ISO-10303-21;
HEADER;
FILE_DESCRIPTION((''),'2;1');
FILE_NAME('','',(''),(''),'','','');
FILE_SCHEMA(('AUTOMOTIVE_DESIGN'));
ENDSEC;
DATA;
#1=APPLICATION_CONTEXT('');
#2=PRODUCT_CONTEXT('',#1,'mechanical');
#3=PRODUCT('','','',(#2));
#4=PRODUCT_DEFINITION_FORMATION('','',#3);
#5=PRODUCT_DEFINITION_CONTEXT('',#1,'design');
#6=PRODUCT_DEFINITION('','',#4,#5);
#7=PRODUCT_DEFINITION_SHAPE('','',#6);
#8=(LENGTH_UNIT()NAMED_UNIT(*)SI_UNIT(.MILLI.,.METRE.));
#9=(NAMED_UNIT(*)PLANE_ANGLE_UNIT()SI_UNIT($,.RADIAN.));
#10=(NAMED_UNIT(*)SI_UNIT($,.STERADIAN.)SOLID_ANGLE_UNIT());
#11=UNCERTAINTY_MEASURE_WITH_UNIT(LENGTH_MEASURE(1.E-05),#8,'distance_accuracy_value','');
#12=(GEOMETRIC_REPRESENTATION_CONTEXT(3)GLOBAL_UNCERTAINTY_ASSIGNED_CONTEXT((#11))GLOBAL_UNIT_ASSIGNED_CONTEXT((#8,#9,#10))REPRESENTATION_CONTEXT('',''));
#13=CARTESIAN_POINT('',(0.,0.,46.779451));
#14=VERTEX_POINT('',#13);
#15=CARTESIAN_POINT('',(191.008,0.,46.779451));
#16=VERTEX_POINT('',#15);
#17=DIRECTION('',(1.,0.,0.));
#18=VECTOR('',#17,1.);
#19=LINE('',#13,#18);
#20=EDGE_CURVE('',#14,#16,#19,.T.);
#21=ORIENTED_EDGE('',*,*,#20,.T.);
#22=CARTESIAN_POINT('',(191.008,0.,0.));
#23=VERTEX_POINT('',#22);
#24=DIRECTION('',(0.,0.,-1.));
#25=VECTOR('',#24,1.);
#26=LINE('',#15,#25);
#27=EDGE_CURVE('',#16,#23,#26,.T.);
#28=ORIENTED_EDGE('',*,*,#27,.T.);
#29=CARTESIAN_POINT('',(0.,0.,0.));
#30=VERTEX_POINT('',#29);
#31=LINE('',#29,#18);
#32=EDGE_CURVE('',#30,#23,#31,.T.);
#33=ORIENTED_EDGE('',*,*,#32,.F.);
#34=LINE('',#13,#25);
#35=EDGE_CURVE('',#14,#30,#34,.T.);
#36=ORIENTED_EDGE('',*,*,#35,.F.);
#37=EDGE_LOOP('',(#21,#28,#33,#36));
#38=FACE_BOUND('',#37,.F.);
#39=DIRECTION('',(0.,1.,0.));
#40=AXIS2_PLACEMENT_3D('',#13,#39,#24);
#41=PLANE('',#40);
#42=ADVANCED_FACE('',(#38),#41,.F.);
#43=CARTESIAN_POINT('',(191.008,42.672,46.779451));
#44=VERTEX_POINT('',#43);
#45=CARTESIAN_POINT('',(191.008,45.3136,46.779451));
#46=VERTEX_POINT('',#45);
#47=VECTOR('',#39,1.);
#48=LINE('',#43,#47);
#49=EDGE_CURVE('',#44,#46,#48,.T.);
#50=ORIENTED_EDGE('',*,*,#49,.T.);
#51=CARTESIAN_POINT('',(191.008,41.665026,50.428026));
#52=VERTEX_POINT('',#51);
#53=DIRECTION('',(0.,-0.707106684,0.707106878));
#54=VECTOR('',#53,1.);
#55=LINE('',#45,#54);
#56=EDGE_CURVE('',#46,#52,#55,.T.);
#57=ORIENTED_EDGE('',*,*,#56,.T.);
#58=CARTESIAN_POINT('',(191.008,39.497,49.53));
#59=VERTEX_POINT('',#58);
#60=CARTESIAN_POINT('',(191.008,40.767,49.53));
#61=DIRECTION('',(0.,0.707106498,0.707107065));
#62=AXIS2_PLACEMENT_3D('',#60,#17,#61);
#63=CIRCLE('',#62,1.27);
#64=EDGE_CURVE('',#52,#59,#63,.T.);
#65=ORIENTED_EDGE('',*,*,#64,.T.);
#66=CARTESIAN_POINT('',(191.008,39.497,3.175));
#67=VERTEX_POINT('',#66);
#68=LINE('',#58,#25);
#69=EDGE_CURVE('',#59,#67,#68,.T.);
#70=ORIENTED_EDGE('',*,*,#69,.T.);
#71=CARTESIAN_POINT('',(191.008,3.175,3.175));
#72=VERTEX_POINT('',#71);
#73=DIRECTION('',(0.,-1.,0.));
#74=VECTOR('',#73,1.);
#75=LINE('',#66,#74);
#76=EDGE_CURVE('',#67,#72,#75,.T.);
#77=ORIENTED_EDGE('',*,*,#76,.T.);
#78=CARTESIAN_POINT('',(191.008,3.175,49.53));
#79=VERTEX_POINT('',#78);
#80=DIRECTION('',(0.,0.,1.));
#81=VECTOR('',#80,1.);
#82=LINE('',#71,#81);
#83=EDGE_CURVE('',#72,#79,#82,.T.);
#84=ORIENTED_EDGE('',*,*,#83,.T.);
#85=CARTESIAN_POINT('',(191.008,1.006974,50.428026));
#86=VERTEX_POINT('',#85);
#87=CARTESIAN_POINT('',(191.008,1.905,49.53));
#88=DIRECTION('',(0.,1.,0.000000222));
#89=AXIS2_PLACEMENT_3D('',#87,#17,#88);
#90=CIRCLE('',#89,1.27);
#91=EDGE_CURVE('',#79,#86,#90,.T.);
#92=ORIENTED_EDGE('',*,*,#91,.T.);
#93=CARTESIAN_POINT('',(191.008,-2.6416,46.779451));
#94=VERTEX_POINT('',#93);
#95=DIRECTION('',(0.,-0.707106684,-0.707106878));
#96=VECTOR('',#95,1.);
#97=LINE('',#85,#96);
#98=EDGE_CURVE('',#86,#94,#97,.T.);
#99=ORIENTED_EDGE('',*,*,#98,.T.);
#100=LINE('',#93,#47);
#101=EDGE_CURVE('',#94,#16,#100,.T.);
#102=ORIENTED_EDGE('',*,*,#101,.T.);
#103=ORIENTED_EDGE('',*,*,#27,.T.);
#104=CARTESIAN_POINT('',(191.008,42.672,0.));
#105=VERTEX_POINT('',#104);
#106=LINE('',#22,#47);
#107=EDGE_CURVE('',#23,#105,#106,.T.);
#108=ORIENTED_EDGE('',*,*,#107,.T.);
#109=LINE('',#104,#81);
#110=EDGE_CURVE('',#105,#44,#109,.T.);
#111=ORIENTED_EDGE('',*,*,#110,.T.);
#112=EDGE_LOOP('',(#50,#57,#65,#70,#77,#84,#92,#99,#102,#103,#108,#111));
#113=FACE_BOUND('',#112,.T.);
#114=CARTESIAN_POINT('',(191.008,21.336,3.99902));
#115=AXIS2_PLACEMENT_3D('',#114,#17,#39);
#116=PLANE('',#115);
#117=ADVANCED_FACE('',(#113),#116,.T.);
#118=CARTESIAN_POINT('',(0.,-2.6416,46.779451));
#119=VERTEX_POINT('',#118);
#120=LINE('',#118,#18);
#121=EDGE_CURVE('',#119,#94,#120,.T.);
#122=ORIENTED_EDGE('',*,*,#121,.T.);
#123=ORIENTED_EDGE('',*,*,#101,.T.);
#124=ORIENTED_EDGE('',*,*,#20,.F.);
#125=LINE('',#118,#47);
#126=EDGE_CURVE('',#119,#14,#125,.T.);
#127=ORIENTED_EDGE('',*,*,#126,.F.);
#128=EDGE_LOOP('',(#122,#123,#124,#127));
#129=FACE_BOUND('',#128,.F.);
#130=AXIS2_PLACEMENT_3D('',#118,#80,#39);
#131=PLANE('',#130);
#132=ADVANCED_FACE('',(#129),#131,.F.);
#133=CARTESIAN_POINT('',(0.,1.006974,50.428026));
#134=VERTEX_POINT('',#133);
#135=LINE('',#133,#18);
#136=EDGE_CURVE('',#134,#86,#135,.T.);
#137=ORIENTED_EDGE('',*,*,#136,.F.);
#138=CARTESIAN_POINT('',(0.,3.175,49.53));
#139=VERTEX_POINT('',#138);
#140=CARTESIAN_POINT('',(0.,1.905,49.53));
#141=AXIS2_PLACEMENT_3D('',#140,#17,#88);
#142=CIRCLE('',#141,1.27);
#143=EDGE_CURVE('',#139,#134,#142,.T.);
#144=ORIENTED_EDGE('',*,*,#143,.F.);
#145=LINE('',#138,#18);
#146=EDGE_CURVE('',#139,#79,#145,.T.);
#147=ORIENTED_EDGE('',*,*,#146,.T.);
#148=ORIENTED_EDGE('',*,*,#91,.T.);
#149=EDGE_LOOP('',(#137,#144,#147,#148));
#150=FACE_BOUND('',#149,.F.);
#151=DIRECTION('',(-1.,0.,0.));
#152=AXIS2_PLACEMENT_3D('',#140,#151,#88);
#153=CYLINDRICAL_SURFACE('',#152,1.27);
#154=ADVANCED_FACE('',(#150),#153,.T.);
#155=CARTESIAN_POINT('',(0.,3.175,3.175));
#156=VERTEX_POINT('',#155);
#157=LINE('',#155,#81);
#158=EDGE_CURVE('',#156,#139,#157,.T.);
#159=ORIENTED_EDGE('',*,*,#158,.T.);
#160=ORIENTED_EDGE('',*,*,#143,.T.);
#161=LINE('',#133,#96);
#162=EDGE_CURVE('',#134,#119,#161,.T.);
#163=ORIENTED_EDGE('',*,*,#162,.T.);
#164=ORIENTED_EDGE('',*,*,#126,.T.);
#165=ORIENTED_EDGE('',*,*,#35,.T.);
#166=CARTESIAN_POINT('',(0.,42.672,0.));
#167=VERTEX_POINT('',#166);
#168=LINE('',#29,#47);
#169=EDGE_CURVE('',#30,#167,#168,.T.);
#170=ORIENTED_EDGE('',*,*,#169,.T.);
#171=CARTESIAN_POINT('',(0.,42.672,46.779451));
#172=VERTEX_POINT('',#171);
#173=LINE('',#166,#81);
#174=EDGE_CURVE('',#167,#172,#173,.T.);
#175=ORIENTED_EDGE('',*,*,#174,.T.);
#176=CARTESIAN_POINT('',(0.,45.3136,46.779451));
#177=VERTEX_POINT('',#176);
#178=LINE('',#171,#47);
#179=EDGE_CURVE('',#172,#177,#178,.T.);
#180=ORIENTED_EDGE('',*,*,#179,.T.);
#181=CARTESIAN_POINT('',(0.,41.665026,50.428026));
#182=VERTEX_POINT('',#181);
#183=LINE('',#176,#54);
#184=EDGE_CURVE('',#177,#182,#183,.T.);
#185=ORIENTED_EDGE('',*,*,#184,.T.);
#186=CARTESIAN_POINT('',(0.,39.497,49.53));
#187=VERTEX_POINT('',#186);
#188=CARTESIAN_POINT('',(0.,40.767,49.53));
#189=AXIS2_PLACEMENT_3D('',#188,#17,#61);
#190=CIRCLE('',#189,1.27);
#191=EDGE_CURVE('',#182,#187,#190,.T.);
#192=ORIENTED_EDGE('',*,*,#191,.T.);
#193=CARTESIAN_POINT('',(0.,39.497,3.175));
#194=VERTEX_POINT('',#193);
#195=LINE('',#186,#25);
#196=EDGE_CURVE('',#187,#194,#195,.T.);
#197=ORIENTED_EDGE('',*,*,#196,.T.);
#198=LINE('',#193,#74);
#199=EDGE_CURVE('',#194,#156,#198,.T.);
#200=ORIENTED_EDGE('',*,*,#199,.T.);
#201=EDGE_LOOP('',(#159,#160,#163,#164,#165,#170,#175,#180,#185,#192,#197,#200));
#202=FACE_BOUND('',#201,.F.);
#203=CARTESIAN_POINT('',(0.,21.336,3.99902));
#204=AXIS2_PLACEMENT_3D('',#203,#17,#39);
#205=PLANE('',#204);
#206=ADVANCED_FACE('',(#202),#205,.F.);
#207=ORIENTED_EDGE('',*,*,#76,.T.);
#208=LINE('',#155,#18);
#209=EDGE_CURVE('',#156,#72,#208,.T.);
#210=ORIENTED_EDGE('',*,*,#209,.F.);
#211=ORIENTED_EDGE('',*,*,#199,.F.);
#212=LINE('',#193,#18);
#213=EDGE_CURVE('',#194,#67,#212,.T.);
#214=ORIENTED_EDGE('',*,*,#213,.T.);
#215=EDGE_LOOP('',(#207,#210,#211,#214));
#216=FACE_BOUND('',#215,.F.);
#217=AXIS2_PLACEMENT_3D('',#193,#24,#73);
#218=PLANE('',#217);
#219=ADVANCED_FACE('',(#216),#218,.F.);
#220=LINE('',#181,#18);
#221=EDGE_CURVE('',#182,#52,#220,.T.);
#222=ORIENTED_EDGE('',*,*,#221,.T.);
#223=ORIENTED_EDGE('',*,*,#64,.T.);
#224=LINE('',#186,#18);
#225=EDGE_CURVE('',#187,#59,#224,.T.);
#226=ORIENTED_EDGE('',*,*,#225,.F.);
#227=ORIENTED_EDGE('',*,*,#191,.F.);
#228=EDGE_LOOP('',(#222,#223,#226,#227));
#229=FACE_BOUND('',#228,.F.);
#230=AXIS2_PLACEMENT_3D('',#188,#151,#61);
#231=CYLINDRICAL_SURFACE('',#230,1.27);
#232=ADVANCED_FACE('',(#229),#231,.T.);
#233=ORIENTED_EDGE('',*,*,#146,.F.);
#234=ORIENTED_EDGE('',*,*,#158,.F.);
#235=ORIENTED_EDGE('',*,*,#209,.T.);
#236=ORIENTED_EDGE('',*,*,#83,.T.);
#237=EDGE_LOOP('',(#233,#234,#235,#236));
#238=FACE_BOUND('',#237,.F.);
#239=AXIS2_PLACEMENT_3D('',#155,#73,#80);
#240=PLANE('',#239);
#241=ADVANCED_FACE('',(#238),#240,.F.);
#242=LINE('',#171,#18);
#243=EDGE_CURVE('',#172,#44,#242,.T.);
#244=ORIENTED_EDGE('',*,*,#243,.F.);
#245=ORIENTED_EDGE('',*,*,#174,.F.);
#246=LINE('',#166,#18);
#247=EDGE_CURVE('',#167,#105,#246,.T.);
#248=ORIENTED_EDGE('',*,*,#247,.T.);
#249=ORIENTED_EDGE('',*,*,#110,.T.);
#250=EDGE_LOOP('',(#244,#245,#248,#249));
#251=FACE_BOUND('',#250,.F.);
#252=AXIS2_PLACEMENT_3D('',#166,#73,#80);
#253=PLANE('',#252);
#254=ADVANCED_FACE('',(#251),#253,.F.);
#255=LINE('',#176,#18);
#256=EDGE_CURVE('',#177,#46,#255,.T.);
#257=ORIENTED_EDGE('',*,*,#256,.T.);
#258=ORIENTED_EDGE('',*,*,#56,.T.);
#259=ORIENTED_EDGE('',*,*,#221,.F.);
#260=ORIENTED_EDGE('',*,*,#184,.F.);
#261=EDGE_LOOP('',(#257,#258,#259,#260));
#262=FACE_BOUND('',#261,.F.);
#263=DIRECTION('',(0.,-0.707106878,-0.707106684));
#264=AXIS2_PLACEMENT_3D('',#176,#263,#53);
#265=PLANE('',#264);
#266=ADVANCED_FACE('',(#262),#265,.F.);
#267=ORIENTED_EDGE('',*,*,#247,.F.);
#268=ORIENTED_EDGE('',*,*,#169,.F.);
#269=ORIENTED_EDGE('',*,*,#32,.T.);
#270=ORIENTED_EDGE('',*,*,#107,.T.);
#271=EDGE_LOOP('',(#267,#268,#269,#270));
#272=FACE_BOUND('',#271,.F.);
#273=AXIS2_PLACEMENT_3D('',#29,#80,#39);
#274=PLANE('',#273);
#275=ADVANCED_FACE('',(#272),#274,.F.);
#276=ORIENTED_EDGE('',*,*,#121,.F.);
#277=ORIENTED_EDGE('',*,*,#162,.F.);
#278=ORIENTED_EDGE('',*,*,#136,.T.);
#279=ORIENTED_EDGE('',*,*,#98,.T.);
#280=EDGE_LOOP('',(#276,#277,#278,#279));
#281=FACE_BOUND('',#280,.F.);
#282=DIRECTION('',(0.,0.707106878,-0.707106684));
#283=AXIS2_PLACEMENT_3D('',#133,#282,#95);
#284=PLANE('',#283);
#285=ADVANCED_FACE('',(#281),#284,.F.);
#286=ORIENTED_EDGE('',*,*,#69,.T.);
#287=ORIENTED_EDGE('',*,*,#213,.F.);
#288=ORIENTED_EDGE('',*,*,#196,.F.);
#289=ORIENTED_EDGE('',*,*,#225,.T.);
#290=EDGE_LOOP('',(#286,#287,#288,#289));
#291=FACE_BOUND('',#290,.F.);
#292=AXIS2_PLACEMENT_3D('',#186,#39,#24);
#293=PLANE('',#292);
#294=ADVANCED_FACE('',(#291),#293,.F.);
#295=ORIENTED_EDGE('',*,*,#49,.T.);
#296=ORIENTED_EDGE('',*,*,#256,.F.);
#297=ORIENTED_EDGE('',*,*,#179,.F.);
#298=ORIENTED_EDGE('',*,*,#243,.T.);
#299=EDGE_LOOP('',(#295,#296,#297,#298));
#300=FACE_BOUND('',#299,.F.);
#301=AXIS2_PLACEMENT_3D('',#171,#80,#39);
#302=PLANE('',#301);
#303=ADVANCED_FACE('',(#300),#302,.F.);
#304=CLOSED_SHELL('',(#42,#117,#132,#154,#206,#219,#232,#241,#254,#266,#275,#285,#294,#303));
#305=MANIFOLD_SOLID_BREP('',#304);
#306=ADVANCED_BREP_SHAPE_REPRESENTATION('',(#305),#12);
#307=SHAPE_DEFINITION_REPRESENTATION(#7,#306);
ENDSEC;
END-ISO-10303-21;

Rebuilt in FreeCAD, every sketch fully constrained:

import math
import FreeCAD as App
import Part
import Sketcher

V = App.Vector
Q = App.Units.Quantity

doc = App.newDocument("Part")
body = doc.addObject("PartDesign::Body", "Body")

# Sketch on YZ plane
sketch1 = body.newObject("Sketcher::SketchObject", "Sketch")
sketch1.AttachmentSupport = (doc.getObject("YZ_Plane"), [""])
sketch1.MapMode = "FlatFace"
sketch1.addGeometry(Part.LineSegment(V(0, 0, 0), V(42.672, 0, 0)), False)
sketch1.addGeometry(Part.LineSegment(V(42.672, 0, 0), V(42.672, 46.779451, 0)), False)
sketch1.addGeometry(Part.LineSegment(V(42.672, 46.779451, 0), V(45.3136, 46.779451, 0)), False)
sketch1.addGeometry(Part.LineSegment(V(45.3136, 46.779451, 0), V(41.665026, 50.428026, 0)), False)
sketch1.addGeometry(Part.ArcOfCircle(Part.Circle(V(40.767, 49.53, 0), V(0, 0, 1), 1.27), math.radians(45.000023), math.radians(179.999987)), False)
sketch1.addGeometry(Part.LineSegment(V(39.497, 49.53, 0), V(39.497, 3.175, 0)), False)
sketch1.addGeometry(Part.LineSegment(V(39.497, 3.175, 0), V(3.175, 3.175, 0)), False)
sketch1.addGeometry(Part.LineSegment(V(3.175, 3.175, 0), V(3.175, 49.53, 0)), False)
sketch1.addGeometry(Part.ArcOfCircle(Part.Circle(V(1.905, 49.53, 0), V(0, 0, 1), 1.27), math.radians(0.000013), math.radians(134.999977)), False)
sketch1.addGeometry(Part.LineSegment(V(1.006974, 50.428026, 0), V(-2.6416, 46.779451, 0)), False)
sketch1.addGeometry(Part.LineSegment(V(-2.6416, 46.779451, 0), V(0, 46.779451, 0)), False)
sketch1.addGeometry(Part.LineSegment(V(0, 46.779451, 0), V(0, 0, 0)), False)
sketch1.addConstraint(Sketcher.Constraint("Coincident", 0, 2, 1, 1))
sketch1.addConstraint(Sketcher.Constraint("Coincident", 1, 2, 2, 1))
sketch1.addConstraint(Sketcher.Constraint("Coincident", 2, 2, 3, 1))
sketch1.addConstraint(Sketcher.Constraint("Tangent", 3, 2, 4, 1))
sketch1.addConstraint(Sketcher.Constraint("Tangent", 4, 2, 5, 1))
sketch1.addConstraint(Sketcher.Constraint("Coincident", 5, 2, 6, 1))
sketch1.addConstraint(Sketcher.Constraint("Coincident", 6, 2, 7, 1))
sketch1.addConstraint(Sketcher.Constraint("Tangent", 7, 2, 8, 1))
sketch1.addConstraint(Sketcher.Constraint("Tangent", 8, 2, 9, 1))
sketch1.addConstraint(Sketcher.Constraint("Coincident", 9, 2, 10, 1))
sketch1.addConstraint(Sketcher.Constraint("Coincident", 10, 2, 11, 1))
sketch1.addConstraint(Sketcher.Constraint("Coincident", 11, 2, 0, 1))
sketch1.addConstraint(Sketcher.Constraint("Horizontal", 0))
sketch1.addConstraint(Sketcher.Constraint("Vertical", 1))
sketch1.addConstraint(Sketcher.Constraint("Horizontal", 2))
sketch1.addConstraint(Sketcher.Constraint("Vertical", 5))
sketch1.addConstraint(Sketcher.Constraint("Horizontal", 6))
sketch1.addConstraint(Sketcher.Constraint("Vertical", 7))
sketch1.addConstraint(Sketcher.Constraint("Horizontal", 10))
sketch1.addConstraint(Sketcher.Constraint("Vertical", 11))
sketch1.addConstraint(Sketcher.Constraint("Coincident", 11, 2, -1, 1))
sketch1.addConstraint(Sketcher.Constraint("Equal", 4, 8))
sketch1.addConstraint(Sketcher.Constraint("Perpendicular", 3, 9))
sketch1.addConstraint(Sketcher.Constraint("Horizontal", 4, 3, 8, 3))
sketch1.addConstraint(Sketcher.Constraint("Horizontal", 3, 2, 8, 2))
sketch1.addConstraint(Sketcher.Constraint("Horizontal", 2, 2, 9, 2))
sketch1.addConstraint(Sketcher.Constraint("Equal", 2, 10))
sketch1.addConstraint(Sketcher.Constraint("Radius", 4, Q("0.05 in")))
sketch1.addConstraint(Sketcher.Constraint("DistanceX", 0, 1, 0, 2, Q("1.68 in")))
sketch1.addConstraint(Sketcher.Constraint("DistanceX", 6, 2, 6, 1, Q("1.43 in")))
sketch1.addConstraint(Sketcher.Constraint("DistanceX", 2, 1, 2, 2, Q("0.104 in")))
sketch1.addConstraint(Sketcher.Constraint("DistanceY", 5, 2, 5, 1, Q("1.825 in")))
sketch1.addConstraint(Sketcher.Constraint("DistanceY", -1, 1, 4, 3, Q("1.95 in")))
pad1 = body.newObject("PartDesign::Pad", "Pad")
pad1.Profile = sketch1
pad1.Length = Q("7.52 in")

doc.recompute()
